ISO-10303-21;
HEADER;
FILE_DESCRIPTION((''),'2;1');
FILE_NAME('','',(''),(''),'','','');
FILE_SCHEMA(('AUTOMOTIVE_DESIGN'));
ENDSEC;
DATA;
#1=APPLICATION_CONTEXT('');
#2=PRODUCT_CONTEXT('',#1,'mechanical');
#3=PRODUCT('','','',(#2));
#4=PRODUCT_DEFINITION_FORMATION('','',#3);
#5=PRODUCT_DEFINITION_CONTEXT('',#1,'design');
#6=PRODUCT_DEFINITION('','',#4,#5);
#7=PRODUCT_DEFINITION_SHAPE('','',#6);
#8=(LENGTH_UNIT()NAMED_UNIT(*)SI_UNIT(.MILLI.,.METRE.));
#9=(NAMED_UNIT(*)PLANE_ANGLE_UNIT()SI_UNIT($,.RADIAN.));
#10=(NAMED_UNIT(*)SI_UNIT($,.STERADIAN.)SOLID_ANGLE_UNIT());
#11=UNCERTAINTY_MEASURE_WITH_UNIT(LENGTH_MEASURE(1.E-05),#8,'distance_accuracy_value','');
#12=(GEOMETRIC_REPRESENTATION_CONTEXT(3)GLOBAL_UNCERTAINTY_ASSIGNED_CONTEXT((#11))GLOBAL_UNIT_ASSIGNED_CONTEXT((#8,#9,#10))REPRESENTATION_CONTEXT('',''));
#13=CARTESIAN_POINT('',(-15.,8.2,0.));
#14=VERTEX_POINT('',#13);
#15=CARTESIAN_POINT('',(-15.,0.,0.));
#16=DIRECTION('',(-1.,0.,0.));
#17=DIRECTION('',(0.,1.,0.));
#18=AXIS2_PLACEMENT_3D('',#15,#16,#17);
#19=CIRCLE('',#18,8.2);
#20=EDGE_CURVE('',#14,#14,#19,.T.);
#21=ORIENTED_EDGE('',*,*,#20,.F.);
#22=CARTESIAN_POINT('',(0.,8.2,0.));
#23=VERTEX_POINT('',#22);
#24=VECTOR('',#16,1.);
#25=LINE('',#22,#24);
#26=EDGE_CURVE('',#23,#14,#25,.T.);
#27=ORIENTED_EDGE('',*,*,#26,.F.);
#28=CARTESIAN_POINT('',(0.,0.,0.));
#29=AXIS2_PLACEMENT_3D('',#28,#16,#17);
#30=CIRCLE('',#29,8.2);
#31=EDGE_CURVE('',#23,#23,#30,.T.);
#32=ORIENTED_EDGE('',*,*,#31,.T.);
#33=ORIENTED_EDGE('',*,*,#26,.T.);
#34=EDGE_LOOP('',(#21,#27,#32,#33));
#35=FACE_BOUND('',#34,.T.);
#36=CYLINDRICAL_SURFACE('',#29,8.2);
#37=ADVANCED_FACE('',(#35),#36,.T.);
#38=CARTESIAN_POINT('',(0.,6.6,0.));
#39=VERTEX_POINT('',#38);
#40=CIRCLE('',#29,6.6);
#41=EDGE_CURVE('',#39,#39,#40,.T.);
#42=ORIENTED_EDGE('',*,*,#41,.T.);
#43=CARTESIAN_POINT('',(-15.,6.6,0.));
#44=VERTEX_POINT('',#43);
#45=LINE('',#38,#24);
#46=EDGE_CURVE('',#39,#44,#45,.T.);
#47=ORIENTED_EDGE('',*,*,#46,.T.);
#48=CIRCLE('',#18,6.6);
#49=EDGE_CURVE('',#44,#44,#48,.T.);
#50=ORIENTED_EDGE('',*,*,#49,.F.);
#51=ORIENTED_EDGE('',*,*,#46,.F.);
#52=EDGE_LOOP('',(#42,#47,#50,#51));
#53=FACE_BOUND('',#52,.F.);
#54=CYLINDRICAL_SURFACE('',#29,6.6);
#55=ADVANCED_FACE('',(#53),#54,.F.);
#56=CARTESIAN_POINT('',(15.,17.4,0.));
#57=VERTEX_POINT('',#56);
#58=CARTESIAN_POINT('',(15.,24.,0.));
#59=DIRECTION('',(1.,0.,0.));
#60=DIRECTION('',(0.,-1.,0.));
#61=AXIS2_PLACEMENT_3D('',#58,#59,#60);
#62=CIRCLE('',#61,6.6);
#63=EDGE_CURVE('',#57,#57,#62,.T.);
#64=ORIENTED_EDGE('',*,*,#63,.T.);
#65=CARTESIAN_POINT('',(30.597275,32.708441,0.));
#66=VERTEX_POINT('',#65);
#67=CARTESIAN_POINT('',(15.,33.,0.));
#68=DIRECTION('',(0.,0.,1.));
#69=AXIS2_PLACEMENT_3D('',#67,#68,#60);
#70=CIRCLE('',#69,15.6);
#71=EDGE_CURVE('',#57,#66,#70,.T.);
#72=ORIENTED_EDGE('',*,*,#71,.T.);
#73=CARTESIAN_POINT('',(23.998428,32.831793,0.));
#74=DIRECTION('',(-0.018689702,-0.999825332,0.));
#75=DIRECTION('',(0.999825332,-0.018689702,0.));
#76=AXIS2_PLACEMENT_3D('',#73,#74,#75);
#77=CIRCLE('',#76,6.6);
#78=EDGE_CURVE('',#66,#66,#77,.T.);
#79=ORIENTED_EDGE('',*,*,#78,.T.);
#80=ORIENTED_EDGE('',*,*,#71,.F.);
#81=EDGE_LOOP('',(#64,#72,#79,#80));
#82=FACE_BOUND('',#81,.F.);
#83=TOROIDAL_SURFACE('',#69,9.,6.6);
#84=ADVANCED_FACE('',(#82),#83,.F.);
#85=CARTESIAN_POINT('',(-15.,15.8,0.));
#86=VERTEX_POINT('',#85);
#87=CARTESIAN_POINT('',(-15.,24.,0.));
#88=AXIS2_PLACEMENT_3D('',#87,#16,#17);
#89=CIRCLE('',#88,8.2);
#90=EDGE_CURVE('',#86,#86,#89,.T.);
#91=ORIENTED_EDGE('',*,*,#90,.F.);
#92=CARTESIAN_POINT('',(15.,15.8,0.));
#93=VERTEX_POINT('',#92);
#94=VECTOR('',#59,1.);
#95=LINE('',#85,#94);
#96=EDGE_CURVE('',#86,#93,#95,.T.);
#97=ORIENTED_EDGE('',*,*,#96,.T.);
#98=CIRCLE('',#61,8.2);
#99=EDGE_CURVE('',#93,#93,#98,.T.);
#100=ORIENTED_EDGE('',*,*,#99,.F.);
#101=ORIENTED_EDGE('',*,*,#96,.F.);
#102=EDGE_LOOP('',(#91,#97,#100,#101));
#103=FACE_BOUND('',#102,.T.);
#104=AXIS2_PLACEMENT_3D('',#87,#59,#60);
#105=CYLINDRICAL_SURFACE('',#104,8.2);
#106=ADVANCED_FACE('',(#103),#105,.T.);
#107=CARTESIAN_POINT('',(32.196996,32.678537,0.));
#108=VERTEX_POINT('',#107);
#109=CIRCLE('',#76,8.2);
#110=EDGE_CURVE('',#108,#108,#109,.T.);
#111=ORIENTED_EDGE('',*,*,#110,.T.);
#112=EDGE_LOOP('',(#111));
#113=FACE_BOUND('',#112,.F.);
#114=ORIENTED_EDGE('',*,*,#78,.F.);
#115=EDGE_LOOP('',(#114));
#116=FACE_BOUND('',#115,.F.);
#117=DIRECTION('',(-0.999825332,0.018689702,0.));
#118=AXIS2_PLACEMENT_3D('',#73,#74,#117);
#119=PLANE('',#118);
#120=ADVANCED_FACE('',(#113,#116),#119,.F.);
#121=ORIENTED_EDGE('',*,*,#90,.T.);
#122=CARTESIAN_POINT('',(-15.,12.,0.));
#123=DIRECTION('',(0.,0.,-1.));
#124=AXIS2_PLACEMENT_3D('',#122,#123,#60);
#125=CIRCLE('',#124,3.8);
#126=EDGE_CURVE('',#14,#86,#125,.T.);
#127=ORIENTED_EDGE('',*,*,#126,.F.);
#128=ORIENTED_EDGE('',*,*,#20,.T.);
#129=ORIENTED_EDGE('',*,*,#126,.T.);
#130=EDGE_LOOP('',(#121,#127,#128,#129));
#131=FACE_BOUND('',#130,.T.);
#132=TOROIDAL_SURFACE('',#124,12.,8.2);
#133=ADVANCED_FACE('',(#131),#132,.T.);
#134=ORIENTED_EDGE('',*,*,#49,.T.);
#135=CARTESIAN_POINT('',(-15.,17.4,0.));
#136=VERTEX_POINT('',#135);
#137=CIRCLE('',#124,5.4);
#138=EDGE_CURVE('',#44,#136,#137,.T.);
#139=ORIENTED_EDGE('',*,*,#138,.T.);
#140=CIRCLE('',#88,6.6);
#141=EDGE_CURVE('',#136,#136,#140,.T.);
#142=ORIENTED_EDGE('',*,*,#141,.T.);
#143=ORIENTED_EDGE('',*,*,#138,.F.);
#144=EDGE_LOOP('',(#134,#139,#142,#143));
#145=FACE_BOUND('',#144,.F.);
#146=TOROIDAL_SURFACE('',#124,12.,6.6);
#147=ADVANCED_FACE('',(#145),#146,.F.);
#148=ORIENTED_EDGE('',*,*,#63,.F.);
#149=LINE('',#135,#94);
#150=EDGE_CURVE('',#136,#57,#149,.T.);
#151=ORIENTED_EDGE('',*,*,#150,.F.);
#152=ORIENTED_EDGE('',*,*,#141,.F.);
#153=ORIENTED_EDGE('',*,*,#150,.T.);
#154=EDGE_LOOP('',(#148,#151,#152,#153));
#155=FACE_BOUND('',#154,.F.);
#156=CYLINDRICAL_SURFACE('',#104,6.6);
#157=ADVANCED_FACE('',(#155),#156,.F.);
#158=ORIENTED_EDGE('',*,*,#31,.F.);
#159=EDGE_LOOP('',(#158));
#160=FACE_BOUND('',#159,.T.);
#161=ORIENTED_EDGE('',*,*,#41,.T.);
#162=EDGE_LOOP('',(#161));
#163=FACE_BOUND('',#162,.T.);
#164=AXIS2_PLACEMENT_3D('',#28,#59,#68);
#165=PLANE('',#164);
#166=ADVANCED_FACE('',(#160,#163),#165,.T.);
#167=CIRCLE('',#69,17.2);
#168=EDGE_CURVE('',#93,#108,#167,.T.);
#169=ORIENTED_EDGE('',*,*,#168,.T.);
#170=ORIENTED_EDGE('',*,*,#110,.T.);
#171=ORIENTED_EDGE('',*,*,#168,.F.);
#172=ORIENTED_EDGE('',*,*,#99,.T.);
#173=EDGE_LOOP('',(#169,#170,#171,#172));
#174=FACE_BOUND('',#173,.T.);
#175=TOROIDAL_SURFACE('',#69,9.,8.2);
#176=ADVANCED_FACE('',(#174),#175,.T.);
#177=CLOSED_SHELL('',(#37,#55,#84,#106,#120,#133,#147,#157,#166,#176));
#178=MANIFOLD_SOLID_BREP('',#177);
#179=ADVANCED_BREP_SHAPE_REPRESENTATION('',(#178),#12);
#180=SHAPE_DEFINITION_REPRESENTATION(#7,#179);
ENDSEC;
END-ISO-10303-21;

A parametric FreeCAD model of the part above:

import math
import FreeCAD as App
import Part
import Sketcher

V = App.Vector
Q = App.Units.Quantity

doc = App.newDocument("Part")
params = doc.addObject("Spreadsheet::Sheet", "Params")
for row, (alias, value) in enumerate([
    ("sketch1_diameter", "16.4 mm"),
    ("sketch1_diameter2", "13.2 mm"),
    ("sketch2_radius", "12 mm"),
    ("sketch2_radius2", "9 mm"),
    ("sketch2_width", "15 mm"),
    ("sketch2_width2", "30 mm"),
], start=1):
    params.set(f"A{row}", alias)
    params.set(f"B{row}", "=" + value)
    params.setAlias(f"B{row}", alias)

body = doc.addObject("PartDesign::Body", "Body")

# Sketch on YZ plane
sketch1 = body.newObject("Sketcher::SketchObject", "Sketch")
sketch1.AttachmentSupport = (doc.getObject("YZ_Plane"), [""])
sketch1.MapMode = "FlatFace"
sketch1.addGeometry([
    Part.Circle(V(0, 0, 0), V(0, 0, 1), 8),
    Part.Circle(V(0, 0, 0), V(0, 0, 1), 7),
], False)
sketch1.addConstraint([
    Sketcher.Constraint("Coincident", 0, 3, -1, 1),
    Sketcher.Constraint("Coincident", 1, 3, -1, 1),
    Sketcher.Constraint("Diameter", 0, Q("16.4 mm")),
    Sketcher.Constraint("Diameter", 1, Q("13.2 mm")),
])
sketch1.setExpression("Constraints[2]", "Params.sketch1_diameter")
sketch1.setExpression("Constraints[3]", "Params.sketch1_diameter2")

# Sketch on XY plane
sketch2 = body.newObject("Sketcher::SketchObject", "Sketch001")
sketch2.AttachmentSupport = (doc.getObject("XY_Plane"), [""])
sketch2.MapMode = "FlatFace"
sketch2.addGeometry([
    Part.LineSegment(V(0, 0, 0), V(-15, 0, 0)),
    Part.ArcOfCircle(Part.Circle(V(-15, 12, 0), V(0, 0, 1), 12), math.radians(90), math.radians(270)),
    Part.LineSegment(V(-15, 24, 0), V(15, 24, 0)),
    Part.ArcOfCircle(Part.Circle(V(15, 33, 0), V(0, 0, 1), 9), math.radians(-90), math.radians(-1)),
], False)
sketch2.addConstraint([
    Sketcher.Constraint("Tangent", 0, 2, 1, 2),
    Sketcher.Constraint("Tangent", 1, 1, 2, 1),
    Sketcher.Constraint("Tangent", 2, 2, 3, 1),
    Sketcher.Constraint("Horizontal", 0),
    Sketcher.Constraint("Horizontal", 2),
    Sketcher.Constraint("Coincident", 0, 1, -1, 1),
    Sketcher.Constraint("Radius", 1, Q("12 mm")),
    Sketcher.Constraint("Radius", 3, Q("9 mm")),
    Sketcher.Constraint("DistanceX", 0, 2, 0, 1, Q("15 mm")),
    Sketcher.Constraint("DistanceX", 2, 1, 2, 2, Q("30 mm")),
    Sketcher.Constraint("DistanceX", -1, 1, 3, 2, Q("23.998428 mm")),
])
sketch2.setExpression("Constraints[6]", "Params.sketch2_radius")
sketch2.setExpression("Constraints[7]", "Params.sketch2_radius2")
sketch2.setExpression("Constraints[8]", "Params.sketch2_width")
sketch2.setExpression("Constraints[9]", "Params.sketch2_width2")
doc.recompute()

additivepipe = body.newObject("PartDesign::AdditivePipe", "AdditivePipe")
additivepipe.Profile = sketch1
additivepipe.Spine = (sketch2, ["Edge1", "Edge2", "Edge3", "Edge4"])

doc.recompute()
